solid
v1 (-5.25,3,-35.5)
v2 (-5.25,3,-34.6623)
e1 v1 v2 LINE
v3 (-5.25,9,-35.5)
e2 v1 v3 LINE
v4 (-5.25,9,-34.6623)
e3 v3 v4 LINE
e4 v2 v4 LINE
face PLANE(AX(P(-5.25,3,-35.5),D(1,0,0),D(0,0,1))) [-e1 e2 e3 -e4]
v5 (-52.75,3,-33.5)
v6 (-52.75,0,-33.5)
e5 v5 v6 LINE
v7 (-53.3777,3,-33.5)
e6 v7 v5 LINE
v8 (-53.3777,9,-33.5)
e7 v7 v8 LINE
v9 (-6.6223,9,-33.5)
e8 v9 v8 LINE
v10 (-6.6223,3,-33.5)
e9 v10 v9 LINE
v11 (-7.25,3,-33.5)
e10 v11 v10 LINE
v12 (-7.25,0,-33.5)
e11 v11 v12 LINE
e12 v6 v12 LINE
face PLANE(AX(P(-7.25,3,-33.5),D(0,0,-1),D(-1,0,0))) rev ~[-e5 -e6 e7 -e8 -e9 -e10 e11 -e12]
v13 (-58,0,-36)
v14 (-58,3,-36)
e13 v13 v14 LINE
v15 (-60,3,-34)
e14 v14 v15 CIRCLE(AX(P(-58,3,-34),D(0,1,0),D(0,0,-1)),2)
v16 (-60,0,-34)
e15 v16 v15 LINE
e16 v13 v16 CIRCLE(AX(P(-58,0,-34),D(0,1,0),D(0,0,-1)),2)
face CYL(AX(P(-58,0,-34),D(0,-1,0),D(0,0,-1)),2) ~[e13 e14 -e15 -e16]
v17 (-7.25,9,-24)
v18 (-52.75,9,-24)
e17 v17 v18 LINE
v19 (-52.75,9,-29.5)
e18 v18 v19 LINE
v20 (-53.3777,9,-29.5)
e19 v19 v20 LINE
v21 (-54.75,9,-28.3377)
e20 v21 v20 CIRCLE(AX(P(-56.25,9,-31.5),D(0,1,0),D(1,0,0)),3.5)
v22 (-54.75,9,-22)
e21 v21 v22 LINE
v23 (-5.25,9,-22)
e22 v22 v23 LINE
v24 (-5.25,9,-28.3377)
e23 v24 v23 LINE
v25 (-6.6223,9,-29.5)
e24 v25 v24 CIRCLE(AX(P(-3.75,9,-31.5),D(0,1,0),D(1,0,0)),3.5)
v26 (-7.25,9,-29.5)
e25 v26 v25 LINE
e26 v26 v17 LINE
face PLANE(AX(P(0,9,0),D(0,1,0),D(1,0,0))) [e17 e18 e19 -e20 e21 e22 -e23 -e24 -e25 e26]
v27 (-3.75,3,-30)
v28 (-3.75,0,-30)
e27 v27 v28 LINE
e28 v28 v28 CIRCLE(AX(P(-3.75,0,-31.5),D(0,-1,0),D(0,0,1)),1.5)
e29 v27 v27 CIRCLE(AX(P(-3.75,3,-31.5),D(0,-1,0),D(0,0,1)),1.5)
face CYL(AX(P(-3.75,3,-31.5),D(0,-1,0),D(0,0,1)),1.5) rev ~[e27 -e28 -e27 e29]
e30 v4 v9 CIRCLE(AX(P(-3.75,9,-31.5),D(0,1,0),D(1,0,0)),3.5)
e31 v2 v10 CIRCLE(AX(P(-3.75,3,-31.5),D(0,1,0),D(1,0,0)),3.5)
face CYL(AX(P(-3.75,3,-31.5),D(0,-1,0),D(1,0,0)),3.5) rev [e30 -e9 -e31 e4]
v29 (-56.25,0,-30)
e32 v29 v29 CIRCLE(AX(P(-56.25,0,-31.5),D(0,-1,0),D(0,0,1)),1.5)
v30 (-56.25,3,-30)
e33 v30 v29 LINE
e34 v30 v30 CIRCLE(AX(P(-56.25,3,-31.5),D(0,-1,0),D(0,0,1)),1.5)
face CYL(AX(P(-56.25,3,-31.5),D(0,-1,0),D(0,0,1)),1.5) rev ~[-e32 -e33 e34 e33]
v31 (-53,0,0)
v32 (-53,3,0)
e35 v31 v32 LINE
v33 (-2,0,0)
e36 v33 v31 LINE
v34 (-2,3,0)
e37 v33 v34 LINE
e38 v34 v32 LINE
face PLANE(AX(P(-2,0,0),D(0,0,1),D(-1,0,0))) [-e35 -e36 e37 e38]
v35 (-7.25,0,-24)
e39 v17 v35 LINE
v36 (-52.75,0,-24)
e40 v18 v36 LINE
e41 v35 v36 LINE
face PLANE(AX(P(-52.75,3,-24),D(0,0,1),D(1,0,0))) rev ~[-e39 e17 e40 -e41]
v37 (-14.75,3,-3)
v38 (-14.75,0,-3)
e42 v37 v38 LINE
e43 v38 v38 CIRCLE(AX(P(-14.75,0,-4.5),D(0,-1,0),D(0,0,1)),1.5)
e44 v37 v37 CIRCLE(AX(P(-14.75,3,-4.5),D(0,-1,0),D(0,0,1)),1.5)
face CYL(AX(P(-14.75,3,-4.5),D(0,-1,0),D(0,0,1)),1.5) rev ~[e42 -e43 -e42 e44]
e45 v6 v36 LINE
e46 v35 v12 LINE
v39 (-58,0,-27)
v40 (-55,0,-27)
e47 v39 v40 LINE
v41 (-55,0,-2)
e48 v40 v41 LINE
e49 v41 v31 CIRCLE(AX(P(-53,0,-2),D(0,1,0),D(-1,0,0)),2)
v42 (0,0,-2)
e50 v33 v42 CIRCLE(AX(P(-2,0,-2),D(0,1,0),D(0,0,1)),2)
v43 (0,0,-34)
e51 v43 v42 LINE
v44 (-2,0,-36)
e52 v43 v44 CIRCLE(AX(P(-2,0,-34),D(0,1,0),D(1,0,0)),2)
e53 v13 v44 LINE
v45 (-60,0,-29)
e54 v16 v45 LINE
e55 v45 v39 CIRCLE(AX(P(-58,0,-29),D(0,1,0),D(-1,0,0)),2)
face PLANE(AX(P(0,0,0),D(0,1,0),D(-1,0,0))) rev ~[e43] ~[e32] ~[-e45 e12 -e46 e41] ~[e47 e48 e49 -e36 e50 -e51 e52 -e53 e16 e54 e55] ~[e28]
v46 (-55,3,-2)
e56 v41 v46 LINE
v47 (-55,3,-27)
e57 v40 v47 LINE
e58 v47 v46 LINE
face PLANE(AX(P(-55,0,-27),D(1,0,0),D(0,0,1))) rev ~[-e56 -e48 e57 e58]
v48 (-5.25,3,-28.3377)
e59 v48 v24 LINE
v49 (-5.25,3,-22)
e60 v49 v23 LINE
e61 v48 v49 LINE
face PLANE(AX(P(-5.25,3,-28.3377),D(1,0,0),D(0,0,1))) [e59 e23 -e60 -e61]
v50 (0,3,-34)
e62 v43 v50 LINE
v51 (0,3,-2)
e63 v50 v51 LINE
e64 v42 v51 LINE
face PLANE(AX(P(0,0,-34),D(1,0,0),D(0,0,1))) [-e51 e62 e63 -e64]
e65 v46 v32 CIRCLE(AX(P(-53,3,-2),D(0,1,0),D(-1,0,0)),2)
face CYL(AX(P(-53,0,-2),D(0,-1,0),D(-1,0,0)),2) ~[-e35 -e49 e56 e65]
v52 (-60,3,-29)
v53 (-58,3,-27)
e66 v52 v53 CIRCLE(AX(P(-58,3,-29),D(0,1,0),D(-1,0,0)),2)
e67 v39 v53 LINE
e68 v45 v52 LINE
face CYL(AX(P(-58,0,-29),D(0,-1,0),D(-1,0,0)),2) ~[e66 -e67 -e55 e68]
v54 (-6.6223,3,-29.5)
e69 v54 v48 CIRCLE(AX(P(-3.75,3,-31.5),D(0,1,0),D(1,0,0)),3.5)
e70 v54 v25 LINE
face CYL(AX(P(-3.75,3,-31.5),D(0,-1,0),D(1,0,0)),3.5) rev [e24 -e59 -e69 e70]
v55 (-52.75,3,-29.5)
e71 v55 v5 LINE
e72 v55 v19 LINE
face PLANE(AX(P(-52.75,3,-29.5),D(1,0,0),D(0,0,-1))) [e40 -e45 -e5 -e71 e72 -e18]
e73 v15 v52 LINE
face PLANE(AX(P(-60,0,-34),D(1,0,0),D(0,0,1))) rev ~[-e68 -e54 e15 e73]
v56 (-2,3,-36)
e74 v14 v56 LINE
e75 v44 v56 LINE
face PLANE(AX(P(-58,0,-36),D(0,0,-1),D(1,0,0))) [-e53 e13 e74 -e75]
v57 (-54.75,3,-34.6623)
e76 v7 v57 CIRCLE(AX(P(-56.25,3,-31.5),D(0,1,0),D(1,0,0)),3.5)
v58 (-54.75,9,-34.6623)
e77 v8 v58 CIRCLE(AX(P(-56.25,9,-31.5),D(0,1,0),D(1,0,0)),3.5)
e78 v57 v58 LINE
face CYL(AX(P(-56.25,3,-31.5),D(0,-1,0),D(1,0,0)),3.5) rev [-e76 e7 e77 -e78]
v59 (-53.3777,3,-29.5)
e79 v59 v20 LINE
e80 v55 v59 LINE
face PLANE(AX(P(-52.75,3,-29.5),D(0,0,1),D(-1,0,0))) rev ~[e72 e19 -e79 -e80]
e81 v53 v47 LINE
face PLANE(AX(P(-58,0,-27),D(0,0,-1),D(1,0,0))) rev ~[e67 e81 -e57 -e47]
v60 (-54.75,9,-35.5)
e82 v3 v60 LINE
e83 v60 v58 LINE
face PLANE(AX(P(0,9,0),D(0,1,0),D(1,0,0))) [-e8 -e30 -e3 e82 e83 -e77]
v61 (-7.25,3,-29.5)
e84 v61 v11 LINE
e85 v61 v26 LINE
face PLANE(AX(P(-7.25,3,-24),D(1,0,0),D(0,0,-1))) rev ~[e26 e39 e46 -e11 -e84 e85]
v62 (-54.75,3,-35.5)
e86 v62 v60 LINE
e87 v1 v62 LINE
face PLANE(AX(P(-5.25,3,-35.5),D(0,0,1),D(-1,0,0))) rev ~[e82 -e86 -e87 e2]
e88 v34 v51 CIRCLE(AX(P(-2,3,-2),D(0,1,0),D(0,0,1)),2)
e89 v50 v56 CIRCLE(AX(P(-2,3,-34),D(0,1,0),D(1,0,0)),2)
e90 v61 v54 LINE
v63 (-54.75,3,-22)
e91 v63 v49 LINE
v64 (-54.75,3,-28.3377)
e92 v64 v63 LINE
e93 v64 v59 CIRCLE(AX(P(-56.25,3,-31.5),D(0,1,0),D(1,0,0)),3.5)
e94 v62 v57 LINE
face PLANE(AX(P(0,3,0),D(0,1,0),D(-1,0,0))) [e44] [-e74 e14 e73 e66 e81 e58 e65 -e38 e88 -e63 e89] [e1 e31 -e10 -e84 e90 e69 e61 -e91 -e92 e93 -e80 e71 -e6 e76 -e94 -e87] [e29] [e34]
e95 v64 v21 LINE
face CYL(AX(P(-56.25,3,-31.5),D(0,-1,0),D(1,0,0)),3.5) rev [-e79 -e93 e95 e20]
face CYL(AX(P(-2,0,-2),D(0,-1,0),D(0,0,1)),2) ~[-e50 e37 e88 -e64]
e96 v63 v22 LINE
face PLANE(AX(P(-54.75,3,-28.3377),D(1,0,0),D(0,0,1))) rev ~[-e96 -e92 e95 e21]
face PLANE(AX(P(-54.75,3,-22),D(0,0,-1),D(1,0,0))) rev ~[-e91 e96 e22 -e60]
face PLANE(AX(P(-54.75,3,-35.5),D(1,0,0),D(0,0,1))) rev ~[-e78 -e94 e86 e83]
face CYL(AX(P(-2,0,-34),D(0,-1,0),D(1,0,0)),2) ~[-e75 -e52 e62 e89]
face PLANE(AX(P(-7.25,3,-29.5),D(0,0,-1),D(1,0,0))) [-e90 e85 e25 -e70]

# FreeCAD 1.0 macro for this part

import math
import FreeCAD as App
import Part
import Sketcher

V = App.Vector
Q = App.Units.Quantity

doc = App.newDocument("Part")
body = doc.addObject("PartDesign::Body", "Body")

# Sketch on XZ plane
sketch1 = body.newObject("Sketcher::SketchObject", "Sketch")
sketch1.AttachmentSupport = (doc.getObject("XZ_Plane"), [""])
sketch1.MapMode = "FlatFace"
sketch1.addGeometry([
    Part.LineSegment(V(-53, 0, 0), V(-2, 0, 0)),  # 0
    Part.ArcOfCircle(Part.Circle(V(-2, -2, 0), V(0, 0, 1), 2), math.radians(0), math.radians(90)),  # 1
    Part.LineSegment(V(0, -2, 0), V(0, -34, 0)),  # 2
    Part.ArcOfCircle(Part.Circle(V(-2, -34, 0), V(0, 0, 1), 2), math.radians(-90), math.radians(0)),  # 3
    Part.LineSegment(V(-2, -36, 0), V(-58, -36, 0)),  # 4
    Part.ArcOfCircle(Part.Circle(V(-58, -34, 0), V(0, 0, 1), 2), math.radians(180), math.radians(270)),  # 5
    Part.LineSegment(V(-60, -34, 0), V(-60, -29, 0)),  # 6
    Part.ArcOfCircle(Part.Circle(V(-58, -29, 0), V(0, 0, 1), 2), math.radians(90), math.radians(180)),  # 7
    Part.LineSegment(V(-58, -27, 0), V(-55, -27, 0)),  # 8
    Part.LineSegment(V(-55, -27, 0), V(-55, -2, 0)),  # 9
    Part.ArcOfCircle(Part.Circle(V(-53, -2, 0), V(0, 0, 1), 2), math.radians(90), math.radians(180)),  # 10
], False)
sketch1.addConstraint([
    Sketcher.Constraint("Tangent", 0, 2, 1, 2),
    Sketcher.Constraint("Tangent", 1, 1, 2, 1),
    Sketcher.Constraint("Tangent", 2, 2, 3, 2),
    Sketcher.Constraint("Tangent", 3, 1, 4, 1),
    Sketcher.Constraint("Tangent", 4, 2, 5, 2),
    Sketcher.Constraint("Tangent", 5, 1, 6, 1),
    Sketcher.Constraint("Tangent", 6, 2, 7, 2),
    Sketcher.Constraint("Tangent", 7, 1, 8, 1),
    Sketcher.Constraint("Coincident", 8, 2, 9, 1),
    Sketcher.Constraint("Tangent", 9, 2, 10, 2),
    Sketcher.Constraint("Tangent", 10, 1, 0, 1),
    Sketcher.Constraint("Horizontal", 0),
    Sketcher.Constraint("Vertical", 2),
    Sketcher.Constraint("Horizontal", 4),
    Sketcher.Constraint("Vertical", 6),
    Sketcher.Constraint("Horizontal", 8),
    Sketcher.Constraint("Vertical", 9),
    Sketcher.Constraint("Equal", 1, 3),
    Sketcher.Constraint("Equal", 3, 5),
    Sketcher.Constraint("Equal", 5, 7),
    Sketcher.Constraint("Equal", 7, 10),
    Sketcher.Constraint("PointOnObject", 0, 2, -1),
    Sketcher.Constraint("PointOnObject", 1, 1, -2),
    Sketcher.Constraint("Radius", 1, Q("2 mm")),
    Sketcher.Constraint("DistanceY", 6, 1, 6, 2, Q("5 mm")),
    Sketcher.Constraint("DistanceY", 3, 1, -1, 1, Q("36 mm")),
    Sketcher.Constraint("DistanceX", 5, 1, -1, 1, Q("60 mm")),
    Sketcher.Constraint("DistanceX", 7, 3, 10, 3, Q("5 mm")),
])
pad1 = body.newObject("PartDesign::Pad", "Pad")
pad1.Profile = sketch1
pad1.Length = 3
pad1.Reversed = True

# Sketch on XZ plane
sketch2 = body.newObject("Sketcher::SketchObject", "Sketch001")
sketch2.AttachmentSupport = (doc.getObject("XZ_Plane"), [""])
sketch2.MapMode = "FlatFace"
sketch2.AttachmentOffset = App.Placement(V(0, 0, -3), App.Rotation())
sketch2.addGeometry([
    Part.Circle(V(-56.2, -31.5, 0), V(0, 0, 1), 1.5),
    Part.Circle(V(-3.8, -31.5, 0), V(0, 0, 1), 1.5),
    Part.Circle(V(-14.8, -4.5, 0), V(0, 0, 1), 1.5),
], False)
sketch2.addConstraint([
    Sketcher.Constraint("Equal", 0, 1),
    Sketcher.Constraint("Equal", 1, 2),
    Sketcher.Constraint("Horizontal", 0, 3, 1, 3),
    Sketcher.Constraint("Diameter", 0, Q("3 mm")),
    Sketcher.Constraint("DistanceX", 2, 3, 1, 3, Q("11 mm")),
    Sketcher.Constraint("DistanceY", 1, 3, 2, 3, Q("27 mm")),
    Sketcher.Constraint("DistanceY", 0, 3, -1, 1, Q("31.5 mm")),
    Sketcher.Constraint("DistanceX", 0, 3, 1, 3, Q("52.5 mm")),
    Sketcher.Constraint("DistanceX", 0, 3, -1, 1, Q("56.25 mm")),
])
doc.recompute()
hole = body.newObject("PartDesign::Hole", "Hole")
hole.Profile = sketch2
hole.ThreadType = "None"
hole.Diameter = 3
hole.DepthType = "Dimension"
hole.Depth = 10.25
hole.DrillPoint = "Flat"
hole.Reversed = True

# Sketch on XZ plane
sketch3 = body.newObject("Sketcher::SketchObject", "Sketch002")
sketch3.AttachmentSupport = (doc.getObject("XZ_Plane"), [""])
sketch3.MapMode = "FlatFace"
sketch3.AttachmentOffset = App.Placement(V(0, 0, -3), App.Rotation())
sketch3.addGeometry([
    Part.LineSegment(V(-53.4, -33.5, 0), V(-6.6, -33.5, 0)),  # 0
    Part.ArcOfCircle(Part.Circle(V(-3.8, -31.5, 0), V(0, 0, 1), 3.5), math.radians(-145), math.radians(-115)),  # 1
    Part.LineSegment(V(-5.2, -34.7, 0), V(-5.2, -35.5, 0)),  # 2
    Part.LineSegment(V(-5.2, -35.5, 0), V(-54.8, -35.5, 0)),  # 3
    Part.LineSegment(V(-54.8, -35.5, 0), V(-54.8, -34.7, 0)),  # 4
    Part.ArcOfCircle(Part.Circle(V(-56.2, -31.5, 0), V(0, 0, 1), 3.5), math.radians(-65), math.radians(-35)),  # 5
    Part.LineSegment(V(-52.8, -29.5, 0), V(-53.4, -29.5, 0)),  # 6
    Part.ArcOfCircle(Part.Circle(V(-56.2, -31.5, 0), V(0, 0, 1), 3.5), math.radians(35), math.radians(65)),  # 7
    Part.LineSegment(V(-54.8, -28.3, 0), V(-54.8, -22, 0)),  # 8
    Part.LineSegment(V(-54.8, -22, 0), V(-5.2, -22, 0)),  # 9
    Part.LineSegment(V(-5.2, -22, 0), V(-5.2, -28.3, 0)),  # 10
    Part.ArcOfCircle(Part.Circle(V(-3.8, -31.5, 0), V(0, 0, 1), 3.5), math.radians(115), math.radians(145)),  # 11
    Part.LineSegment(V(-6.6, -29.5, 0), V(-7.2, -29.5, 0)),  # 12
    Part.LineSegment(V(-7.2, -29.5, 0), V(-7.2, -24, 0)),  # 13
    Part.LineSegment(V(-7.2, -24, 0), V(-52.8, -24, 0)),  # 14
    Part.LineSegment(V(-52.8, -24, 0), V(-52.8, -29.5, 0)),  # 15
], False)
sketch3.addConstraint([
    Sketcher.Constraint("Coincident", 0, 2, 1, 1),
    Sketcher.Constraint("Coincident", 1, 2, 2, 1),
    Sketcher.Constraint("Coincident", 2, 2, 3, 1),
    Sketcher.Constraint("Coincident", 3, 2, 4, 1),
    Sketcher.Constraint("Coincident", 4, 2, 5, 1),
    Sketcher.Constraint("Coincident", 5, 2, 0, 1),
    Sketcher.Constraint("Coincident", 6, 2, 7, 1),
    Sketcher.Constraint("Coincident", 7, 2, 8, 1),
    Sketcher.Constraint("Coincident", 8, 2, 9, 1),
    Sketcher.Constraint("Coincident", 9, 2, 10, 1),
    Sketcher.Constraint("Coincident", 10, 2, 11, 1),
    Sketcher.Constraint("Coincident", 11, 2, 12, 1),
    Sketcher.Constraint("Coincident", 12, 2, 13, 1),
    Sketcher.Constraint("Coincident", 13, 2, 14, 1),
    Sketcher.Constraint("Coincident", 14, 2, 15, 1),
    Sketcher.Constraint("Coincident", 15, 2, 6, 1),
    Sketcher.Constraint("Horizontal", 0),
    Sketcher.Constraint("Vertical", 2),
    Sketcher.Constraint("Horizontal", 3),
    Sketcher.Constraint("Vertical", 4),
    Sketcher.Constraint("Horizontal", 6),
    Sketcher.Constraint("Vertical", 8),
    Sketcher.Constraint("Horizontal", 9),
    Sketcher.Constraint("Vertical", 10),
    Sketcher.Constraint("Horizontal", 12),
    Sketcher.Constraint("Vertical", 13),
    Sketcher.Constraint("Horizontal", 14),
    Sketcher.Constraint("Vertical", 15),
    Sketcher.Constraint("Coincident", 7, 3, 5, 3),
    Sketcher.Constraint("Coincident", 11, 3, 1, 3),
    Sketcher.Constraint("Equal", 1, 5),
    Sketcher.Constraint("Equal", 5, 7),
    Sketcher.Constraint("Equal", 7, 11),
    Sketcher.Constraint("Horizontal", 1, 3, 5, 3),
    Sketcher.Constraint("Horizontal", 1, 2, 4, 2),
    Sketcher.Constraint("Horizontal", 7, 2, 10, 2),
    Sketcher.Constraint("Horizontal", 6, 2, 11, 2),
    Sketcher.Constraint("Vertical", 5, 2, 6, 2),
    Sketcher.Constraint("Vertical", 4, 2, 7, 2),
    Sketcher.Constraint("Equal", 6, 12),
    Sketcher.Constraint("Radius", 1, Q("3.5 mm")),
    Sketcher.Constraint("DistanceX", 3, 2, 3, 1, Q("49.5 mm")),
    Sketcher.Constraint("DistanceX", 14, 2, 14, 1, Q("45.5 mm")),
    Sketcher.Constraint("DistanceY", 0, 2, 1, 3, Q("2 mm")),
    Sketcher.Constraint("DistanceY", 2, 2, 0, 2, Q("2 mm")),
    Sketcher.Constraint("DistanceY", 13, 2, 9, 2, Q("2 mm")),
    Sketcher.Constraint("DistanceY", 5, 3, 8, 2, Q("9.5 mm")),
    Sketcher.Constraint("DistanceY", 8, 2, -1, 1, Q("22 mm")),
    Sketcher.Constraint("DistanceX", 5, 3, 1, 2, Q("51 mm")),
    Sketcher.Constraint("DistanceX", 1, 3, -1, 1, Q("3.75 mm")),
])
pad2 = body.newObject("PartDesign::Pad", "Pad001")
pad2.Profile = sketch3
pad2.Length = 6
pad2.Reversed = True

# Sketch on XZ plane
sketch4 = body.newObject("Sketcher::SketchObject", "Sketch003")
sketch4.AttachmentSupport = (doc.getObject("XZ_Plane"), [""])
sketch4.MapMode = "FlatFace"
sketch4.AttachmentOffset = App.Placement(V(0, 0, -3), App.Rotation())
sketch4.addGeometry([
    Part.LineSegment(V(-53, -34, 0), V(-53, -24, 0)),
    Part.LineSegment(V(-53, -24, 0), V(-7, -24, 0)),
    Part.LineSegment(V(-7, -24, 0), V(-7, -34, 0)),
    Part.LineSegment(V(-7, -34, 0), V(-53, -34, 0)),
], False)
sketch4.addConstraint([
    Sketcher.Constraint("Coincident", 0, 2, 1, 1),
    Sketcher.Constraint("Coincident", 1, 2, 2, 1),
    Sketcher.Constraint("Coincident", 2, 2, 3, 1),
    Sketcher.Constraint("Coincident", 3, 2, 0, 1),
    Sketcher.Constraint("Vertical", 0),
    Sketcher.Constraint("Horizontal", 1),
    Sketcher.Constraint("Vertical", 2),
    Sketcher.Constraint("Horizontal", 3),
    Sketcher.Constraint("DistanceX", 1, 1, 1, 2, Q("45.5 mm")),
    Sketcher.Constraint("DistanceY", 0, 1, 0, 2, Q("9.5 mm")),
    Sketcher.Constraint("DistanceY", 0, 2, -1, 1, Q("24 mm")),
    Sketcher.Constraint("DistanceX", 0, 2, -1, 1, Q("52.75 mm")),
])
pocket1 = body.newObject("PartDesign::Pocket", "Pocket")
pocket1.Profile = sketch4
pocket1.Type = "UpToFirst"
pocket1.Reversed = True

doc.recompute()
